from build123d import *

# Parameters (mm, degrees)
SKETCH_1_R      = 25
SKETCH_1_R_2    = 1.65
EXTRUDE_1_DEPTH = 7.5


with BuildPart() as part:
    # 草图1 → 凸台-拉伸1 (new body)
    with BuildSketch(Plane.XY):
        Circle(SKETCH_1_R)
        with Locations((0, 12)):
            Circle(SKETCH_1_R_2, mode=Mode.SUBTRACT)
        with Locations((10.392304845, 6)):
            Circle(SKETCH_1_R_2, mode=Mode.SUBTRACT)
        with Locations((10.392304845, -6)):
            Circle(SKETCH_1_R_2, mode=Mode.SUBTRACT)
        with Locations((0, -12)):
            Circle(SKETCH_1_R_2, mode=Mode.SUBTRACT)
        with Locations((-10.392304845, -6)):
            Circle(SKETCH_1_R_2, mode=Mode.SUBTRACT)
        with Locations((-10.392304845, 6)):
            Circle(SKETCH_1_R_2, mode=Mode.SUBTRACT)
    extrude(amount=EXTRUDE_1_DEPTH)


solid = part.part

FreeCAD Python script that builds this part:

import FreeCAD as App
import Part
import Sketcher
Q = App.Units.Quantity

doc = App.newDocument("Part")
body = doc.addObject("PartDesign::Body", "Body")

sketch1 = body.newObject("Sketcher::SketchObject", "Sketch")
sketch1.AttachmentSupport = (doc.getObject("XY_Plane"), [""])
sketch1.MapMode = "FlatFace"
sketch1.addGeometry(Part.Circle(App.Vector(0, 0, 0), App.Vector(0, 0, 1), 25), False)
sketch1.addGeometry(Part.Circle(App.Vector(-10.4, -6, 0), App.Vector(0, 0, 1), 1.6), False)
sketch1.addGeometry(Part.Circle(App.Vector(0, -12, 0), App.Vector(0, 0, 1), 1.6), False)
sketch1.addGeometry(Part.Circle(App.Vector(10.4, -6, 0), App.Vector(0, 0, 1), 1.6), False)
sketch1.addGeometry(Part.Circle(App.Vector(-10.4, 6, 0), App.Vector(0, 0, 1), 1.6), False)
sketch1.addGeometry(Part.Circle(App.Vector(10.4, 6, 0), App.Vector(0, 0, 1), 1.6), False)
sketch1.addGeometry(Part.Circle(App.Vector(0, 12, 0), App.Vector(0, 0, 1), 1.6), False)
sketch1.addConstraint(Sketcher.Constraint("Coincident", 0, 3, -1, 1))
sketch1.addConstraint(Sketcher.Constraint("Equal", 1, 2))
sketch1.addConstraint(Sketcher.Constraint("Equal", 2, 3))
sketch1.addConstraint(Sketcher.Constraint("Equal", 3, 4))
sketch1.addConstraint(Sketcher.Constraint("Equal", 4, 5))
sketch1.addConstraint(Sketcher.Constraint("Equal", 5, 6))
sketch1.addConstraint(Sketcher.Constraint("Symmetric", 3, 3, 4, 3, -1, 1))
sketch1.addConstraint(Sketcher.Constraint("Symmetric", 1, 3, 5, 3, -1, 1))
sketch1.addConstraint(Sketcher.Constraint("Symmetric", 2, 3, 6, 3, -1, 1))
sketch1.addConstraint(Sketcher.Constraint("Symmetric", 1, 3, 3, 3, -2))
sketch1.addConstraint(Sketcher.Constraint("PointOnObject", 2, 3, -2))
sketch1.addConstraint(Sketcher.Constraint("Diameter", 0, Q("50 mm")))
sketch1.addConstraint(Sketcher.Constraint("Diameter", 1, Q("3.3 mm")))
sketch1.addConstraint(Sketcher.Constraint("DistanceY", 1, 3, -1, 1, Q("6 mm")))
sketch1.addConstraint(Sketcher.Constraint("DistanceY", 2, 3, -1, 1, Q("12 mm")))
sketch1.addConstraint(Sketcher.Constraint("DistanceX", 1, 3, 3, 3, Q("20.78461 mm")))
pad1 = body.newObject("PartDesign::Pad", "Pad")
pad1.Profile = sketch1
pad1.Length = 7.5

doc.recompute()
